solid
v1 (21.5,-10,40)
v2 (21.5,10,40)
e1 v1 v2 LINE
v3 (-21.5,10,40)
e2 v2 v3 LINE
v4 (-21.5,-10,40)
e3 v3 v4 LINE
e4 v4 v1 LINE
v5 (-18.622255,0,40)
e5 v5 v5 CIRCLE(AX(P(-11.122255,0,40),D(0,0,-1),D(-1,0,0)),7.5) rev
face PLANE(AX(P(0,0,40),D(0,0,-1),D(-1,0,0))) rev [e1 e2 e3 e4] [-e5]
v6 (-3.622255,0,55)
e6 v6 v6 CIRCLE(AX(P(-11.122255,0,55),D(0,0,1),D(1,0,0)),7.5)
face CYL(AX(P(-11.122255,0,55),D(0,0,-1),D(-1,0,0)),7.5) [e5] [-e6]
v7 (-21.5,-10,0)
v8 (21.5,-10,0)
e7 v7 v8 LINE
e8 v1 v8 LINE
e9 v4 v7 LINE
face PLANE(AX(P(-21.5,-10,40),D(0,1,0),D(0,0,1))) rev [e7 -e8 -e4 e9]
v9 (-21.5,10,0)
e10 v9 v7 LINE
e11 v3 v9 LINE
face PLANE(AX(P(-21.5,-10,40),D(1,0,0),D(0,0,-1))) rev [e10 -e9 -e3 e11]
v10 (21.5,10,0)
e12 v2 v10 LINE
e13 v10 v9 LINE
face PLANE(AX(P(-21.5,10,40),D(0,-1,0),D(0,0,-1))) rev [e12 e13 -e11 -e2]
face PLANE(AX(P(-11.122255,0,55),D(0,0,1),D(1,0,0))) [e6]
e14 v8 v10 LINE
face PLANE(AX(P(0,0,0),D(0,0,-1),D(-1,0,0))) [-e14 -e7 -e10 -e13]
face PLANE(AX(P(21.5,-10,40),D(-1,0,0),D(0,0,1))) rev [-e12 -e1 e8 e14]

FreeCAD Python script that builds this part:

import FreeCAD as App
import Part
import Sketcher

V = App.Vector
Q = App.Units.Quantity


def add_polygon(sketch, points):
    """Adds a closed chain of lines whose ends are joined by coincident constraints."""
    first, n = sketch.GeometryCount, len(points)
    for a, b in zip(points, points[1:] + points[:1]):
        sketch.addGeometry(Part.LineSegment(App.Vector(*a, 0), App.Vector(*b, 0)), False)
    for i in range(n):
        sketch.addConstraint(Sketcher.Constraint("Coincident", first + i, 2, first + (i + 1) % n, 1))

doc = App.newDocument("Part")
body = doc.addObject("PartDesign::Body", "Body")

sketch1 = body.newObject("Sketcher::SketchObject", "Sketch")
sketch1.AttachmentSupport = (doc.getObject("XY_Plane"), [""])
sketch1.MapMode = "FlatFace"
add_polygon(sketch1, [(-22, 10), (-22, -10), (22, -10), (22, 10)])
sketch1.addConstraint(Sketcher.Constraint("Vertical", 0))
sketch1.addConstraint(Sketcher.Constraint("Horizontal", 1))
sketch1.addConstraint(Sketcher.Constraint("Vertical", 2))
sketch1.addConstraint(Sketcher.Constraint("Horizontal", 3))
sketch1.addConstraint(Sketcher.Constraint("Symmetric", 0, 2, 2, 2, -1, 1))
sketch1.addConstraint(Sketcher.Constraint("DistanceX", 1, 1, 1, 2, Q("43 mm")))
sketch1.addConstraint(Sketcher.Constraint("DistanceY", 0, 2, 0, 1, Q("20 mm")))
pad1 = body.newObject("PartDesign::Pad", "Pad")
pad1.Profile = sketch1
pad1.Length = 40

sketch2 = body.newObject("Sketcher::SketchObject", "Sketch001")
sketch2.AttachmentSupport = (doc.getObject("XY_Plane"), [""])
sketch2.MapMode = "FlatFace"
sketch2.AttachmentOffset = App.Placement(V(0, 0, 40), App.Rotation())
sketch2.addGeometry(Part.Circle(V(-11, 0, 0), V(0, 0, 1), 8), False)
sketch2.addConstraint(Sketcher.Constraint("PointOnObject", 0, 3, -1))
sketch2.addConstraint(Sketcher.Constraint("Diameter", 0, Q("15 mm")))
sketch2.addConstraint(Sketcher.Constraint("DistanceX", 0, 3, -1, 1, Q("11.122255 mm")))
pad2 = body.newObject("PartDesign::Pad", "Pad001")
pad2.Profile = sketch2
pad2.Length = 15

doc.recompute()
